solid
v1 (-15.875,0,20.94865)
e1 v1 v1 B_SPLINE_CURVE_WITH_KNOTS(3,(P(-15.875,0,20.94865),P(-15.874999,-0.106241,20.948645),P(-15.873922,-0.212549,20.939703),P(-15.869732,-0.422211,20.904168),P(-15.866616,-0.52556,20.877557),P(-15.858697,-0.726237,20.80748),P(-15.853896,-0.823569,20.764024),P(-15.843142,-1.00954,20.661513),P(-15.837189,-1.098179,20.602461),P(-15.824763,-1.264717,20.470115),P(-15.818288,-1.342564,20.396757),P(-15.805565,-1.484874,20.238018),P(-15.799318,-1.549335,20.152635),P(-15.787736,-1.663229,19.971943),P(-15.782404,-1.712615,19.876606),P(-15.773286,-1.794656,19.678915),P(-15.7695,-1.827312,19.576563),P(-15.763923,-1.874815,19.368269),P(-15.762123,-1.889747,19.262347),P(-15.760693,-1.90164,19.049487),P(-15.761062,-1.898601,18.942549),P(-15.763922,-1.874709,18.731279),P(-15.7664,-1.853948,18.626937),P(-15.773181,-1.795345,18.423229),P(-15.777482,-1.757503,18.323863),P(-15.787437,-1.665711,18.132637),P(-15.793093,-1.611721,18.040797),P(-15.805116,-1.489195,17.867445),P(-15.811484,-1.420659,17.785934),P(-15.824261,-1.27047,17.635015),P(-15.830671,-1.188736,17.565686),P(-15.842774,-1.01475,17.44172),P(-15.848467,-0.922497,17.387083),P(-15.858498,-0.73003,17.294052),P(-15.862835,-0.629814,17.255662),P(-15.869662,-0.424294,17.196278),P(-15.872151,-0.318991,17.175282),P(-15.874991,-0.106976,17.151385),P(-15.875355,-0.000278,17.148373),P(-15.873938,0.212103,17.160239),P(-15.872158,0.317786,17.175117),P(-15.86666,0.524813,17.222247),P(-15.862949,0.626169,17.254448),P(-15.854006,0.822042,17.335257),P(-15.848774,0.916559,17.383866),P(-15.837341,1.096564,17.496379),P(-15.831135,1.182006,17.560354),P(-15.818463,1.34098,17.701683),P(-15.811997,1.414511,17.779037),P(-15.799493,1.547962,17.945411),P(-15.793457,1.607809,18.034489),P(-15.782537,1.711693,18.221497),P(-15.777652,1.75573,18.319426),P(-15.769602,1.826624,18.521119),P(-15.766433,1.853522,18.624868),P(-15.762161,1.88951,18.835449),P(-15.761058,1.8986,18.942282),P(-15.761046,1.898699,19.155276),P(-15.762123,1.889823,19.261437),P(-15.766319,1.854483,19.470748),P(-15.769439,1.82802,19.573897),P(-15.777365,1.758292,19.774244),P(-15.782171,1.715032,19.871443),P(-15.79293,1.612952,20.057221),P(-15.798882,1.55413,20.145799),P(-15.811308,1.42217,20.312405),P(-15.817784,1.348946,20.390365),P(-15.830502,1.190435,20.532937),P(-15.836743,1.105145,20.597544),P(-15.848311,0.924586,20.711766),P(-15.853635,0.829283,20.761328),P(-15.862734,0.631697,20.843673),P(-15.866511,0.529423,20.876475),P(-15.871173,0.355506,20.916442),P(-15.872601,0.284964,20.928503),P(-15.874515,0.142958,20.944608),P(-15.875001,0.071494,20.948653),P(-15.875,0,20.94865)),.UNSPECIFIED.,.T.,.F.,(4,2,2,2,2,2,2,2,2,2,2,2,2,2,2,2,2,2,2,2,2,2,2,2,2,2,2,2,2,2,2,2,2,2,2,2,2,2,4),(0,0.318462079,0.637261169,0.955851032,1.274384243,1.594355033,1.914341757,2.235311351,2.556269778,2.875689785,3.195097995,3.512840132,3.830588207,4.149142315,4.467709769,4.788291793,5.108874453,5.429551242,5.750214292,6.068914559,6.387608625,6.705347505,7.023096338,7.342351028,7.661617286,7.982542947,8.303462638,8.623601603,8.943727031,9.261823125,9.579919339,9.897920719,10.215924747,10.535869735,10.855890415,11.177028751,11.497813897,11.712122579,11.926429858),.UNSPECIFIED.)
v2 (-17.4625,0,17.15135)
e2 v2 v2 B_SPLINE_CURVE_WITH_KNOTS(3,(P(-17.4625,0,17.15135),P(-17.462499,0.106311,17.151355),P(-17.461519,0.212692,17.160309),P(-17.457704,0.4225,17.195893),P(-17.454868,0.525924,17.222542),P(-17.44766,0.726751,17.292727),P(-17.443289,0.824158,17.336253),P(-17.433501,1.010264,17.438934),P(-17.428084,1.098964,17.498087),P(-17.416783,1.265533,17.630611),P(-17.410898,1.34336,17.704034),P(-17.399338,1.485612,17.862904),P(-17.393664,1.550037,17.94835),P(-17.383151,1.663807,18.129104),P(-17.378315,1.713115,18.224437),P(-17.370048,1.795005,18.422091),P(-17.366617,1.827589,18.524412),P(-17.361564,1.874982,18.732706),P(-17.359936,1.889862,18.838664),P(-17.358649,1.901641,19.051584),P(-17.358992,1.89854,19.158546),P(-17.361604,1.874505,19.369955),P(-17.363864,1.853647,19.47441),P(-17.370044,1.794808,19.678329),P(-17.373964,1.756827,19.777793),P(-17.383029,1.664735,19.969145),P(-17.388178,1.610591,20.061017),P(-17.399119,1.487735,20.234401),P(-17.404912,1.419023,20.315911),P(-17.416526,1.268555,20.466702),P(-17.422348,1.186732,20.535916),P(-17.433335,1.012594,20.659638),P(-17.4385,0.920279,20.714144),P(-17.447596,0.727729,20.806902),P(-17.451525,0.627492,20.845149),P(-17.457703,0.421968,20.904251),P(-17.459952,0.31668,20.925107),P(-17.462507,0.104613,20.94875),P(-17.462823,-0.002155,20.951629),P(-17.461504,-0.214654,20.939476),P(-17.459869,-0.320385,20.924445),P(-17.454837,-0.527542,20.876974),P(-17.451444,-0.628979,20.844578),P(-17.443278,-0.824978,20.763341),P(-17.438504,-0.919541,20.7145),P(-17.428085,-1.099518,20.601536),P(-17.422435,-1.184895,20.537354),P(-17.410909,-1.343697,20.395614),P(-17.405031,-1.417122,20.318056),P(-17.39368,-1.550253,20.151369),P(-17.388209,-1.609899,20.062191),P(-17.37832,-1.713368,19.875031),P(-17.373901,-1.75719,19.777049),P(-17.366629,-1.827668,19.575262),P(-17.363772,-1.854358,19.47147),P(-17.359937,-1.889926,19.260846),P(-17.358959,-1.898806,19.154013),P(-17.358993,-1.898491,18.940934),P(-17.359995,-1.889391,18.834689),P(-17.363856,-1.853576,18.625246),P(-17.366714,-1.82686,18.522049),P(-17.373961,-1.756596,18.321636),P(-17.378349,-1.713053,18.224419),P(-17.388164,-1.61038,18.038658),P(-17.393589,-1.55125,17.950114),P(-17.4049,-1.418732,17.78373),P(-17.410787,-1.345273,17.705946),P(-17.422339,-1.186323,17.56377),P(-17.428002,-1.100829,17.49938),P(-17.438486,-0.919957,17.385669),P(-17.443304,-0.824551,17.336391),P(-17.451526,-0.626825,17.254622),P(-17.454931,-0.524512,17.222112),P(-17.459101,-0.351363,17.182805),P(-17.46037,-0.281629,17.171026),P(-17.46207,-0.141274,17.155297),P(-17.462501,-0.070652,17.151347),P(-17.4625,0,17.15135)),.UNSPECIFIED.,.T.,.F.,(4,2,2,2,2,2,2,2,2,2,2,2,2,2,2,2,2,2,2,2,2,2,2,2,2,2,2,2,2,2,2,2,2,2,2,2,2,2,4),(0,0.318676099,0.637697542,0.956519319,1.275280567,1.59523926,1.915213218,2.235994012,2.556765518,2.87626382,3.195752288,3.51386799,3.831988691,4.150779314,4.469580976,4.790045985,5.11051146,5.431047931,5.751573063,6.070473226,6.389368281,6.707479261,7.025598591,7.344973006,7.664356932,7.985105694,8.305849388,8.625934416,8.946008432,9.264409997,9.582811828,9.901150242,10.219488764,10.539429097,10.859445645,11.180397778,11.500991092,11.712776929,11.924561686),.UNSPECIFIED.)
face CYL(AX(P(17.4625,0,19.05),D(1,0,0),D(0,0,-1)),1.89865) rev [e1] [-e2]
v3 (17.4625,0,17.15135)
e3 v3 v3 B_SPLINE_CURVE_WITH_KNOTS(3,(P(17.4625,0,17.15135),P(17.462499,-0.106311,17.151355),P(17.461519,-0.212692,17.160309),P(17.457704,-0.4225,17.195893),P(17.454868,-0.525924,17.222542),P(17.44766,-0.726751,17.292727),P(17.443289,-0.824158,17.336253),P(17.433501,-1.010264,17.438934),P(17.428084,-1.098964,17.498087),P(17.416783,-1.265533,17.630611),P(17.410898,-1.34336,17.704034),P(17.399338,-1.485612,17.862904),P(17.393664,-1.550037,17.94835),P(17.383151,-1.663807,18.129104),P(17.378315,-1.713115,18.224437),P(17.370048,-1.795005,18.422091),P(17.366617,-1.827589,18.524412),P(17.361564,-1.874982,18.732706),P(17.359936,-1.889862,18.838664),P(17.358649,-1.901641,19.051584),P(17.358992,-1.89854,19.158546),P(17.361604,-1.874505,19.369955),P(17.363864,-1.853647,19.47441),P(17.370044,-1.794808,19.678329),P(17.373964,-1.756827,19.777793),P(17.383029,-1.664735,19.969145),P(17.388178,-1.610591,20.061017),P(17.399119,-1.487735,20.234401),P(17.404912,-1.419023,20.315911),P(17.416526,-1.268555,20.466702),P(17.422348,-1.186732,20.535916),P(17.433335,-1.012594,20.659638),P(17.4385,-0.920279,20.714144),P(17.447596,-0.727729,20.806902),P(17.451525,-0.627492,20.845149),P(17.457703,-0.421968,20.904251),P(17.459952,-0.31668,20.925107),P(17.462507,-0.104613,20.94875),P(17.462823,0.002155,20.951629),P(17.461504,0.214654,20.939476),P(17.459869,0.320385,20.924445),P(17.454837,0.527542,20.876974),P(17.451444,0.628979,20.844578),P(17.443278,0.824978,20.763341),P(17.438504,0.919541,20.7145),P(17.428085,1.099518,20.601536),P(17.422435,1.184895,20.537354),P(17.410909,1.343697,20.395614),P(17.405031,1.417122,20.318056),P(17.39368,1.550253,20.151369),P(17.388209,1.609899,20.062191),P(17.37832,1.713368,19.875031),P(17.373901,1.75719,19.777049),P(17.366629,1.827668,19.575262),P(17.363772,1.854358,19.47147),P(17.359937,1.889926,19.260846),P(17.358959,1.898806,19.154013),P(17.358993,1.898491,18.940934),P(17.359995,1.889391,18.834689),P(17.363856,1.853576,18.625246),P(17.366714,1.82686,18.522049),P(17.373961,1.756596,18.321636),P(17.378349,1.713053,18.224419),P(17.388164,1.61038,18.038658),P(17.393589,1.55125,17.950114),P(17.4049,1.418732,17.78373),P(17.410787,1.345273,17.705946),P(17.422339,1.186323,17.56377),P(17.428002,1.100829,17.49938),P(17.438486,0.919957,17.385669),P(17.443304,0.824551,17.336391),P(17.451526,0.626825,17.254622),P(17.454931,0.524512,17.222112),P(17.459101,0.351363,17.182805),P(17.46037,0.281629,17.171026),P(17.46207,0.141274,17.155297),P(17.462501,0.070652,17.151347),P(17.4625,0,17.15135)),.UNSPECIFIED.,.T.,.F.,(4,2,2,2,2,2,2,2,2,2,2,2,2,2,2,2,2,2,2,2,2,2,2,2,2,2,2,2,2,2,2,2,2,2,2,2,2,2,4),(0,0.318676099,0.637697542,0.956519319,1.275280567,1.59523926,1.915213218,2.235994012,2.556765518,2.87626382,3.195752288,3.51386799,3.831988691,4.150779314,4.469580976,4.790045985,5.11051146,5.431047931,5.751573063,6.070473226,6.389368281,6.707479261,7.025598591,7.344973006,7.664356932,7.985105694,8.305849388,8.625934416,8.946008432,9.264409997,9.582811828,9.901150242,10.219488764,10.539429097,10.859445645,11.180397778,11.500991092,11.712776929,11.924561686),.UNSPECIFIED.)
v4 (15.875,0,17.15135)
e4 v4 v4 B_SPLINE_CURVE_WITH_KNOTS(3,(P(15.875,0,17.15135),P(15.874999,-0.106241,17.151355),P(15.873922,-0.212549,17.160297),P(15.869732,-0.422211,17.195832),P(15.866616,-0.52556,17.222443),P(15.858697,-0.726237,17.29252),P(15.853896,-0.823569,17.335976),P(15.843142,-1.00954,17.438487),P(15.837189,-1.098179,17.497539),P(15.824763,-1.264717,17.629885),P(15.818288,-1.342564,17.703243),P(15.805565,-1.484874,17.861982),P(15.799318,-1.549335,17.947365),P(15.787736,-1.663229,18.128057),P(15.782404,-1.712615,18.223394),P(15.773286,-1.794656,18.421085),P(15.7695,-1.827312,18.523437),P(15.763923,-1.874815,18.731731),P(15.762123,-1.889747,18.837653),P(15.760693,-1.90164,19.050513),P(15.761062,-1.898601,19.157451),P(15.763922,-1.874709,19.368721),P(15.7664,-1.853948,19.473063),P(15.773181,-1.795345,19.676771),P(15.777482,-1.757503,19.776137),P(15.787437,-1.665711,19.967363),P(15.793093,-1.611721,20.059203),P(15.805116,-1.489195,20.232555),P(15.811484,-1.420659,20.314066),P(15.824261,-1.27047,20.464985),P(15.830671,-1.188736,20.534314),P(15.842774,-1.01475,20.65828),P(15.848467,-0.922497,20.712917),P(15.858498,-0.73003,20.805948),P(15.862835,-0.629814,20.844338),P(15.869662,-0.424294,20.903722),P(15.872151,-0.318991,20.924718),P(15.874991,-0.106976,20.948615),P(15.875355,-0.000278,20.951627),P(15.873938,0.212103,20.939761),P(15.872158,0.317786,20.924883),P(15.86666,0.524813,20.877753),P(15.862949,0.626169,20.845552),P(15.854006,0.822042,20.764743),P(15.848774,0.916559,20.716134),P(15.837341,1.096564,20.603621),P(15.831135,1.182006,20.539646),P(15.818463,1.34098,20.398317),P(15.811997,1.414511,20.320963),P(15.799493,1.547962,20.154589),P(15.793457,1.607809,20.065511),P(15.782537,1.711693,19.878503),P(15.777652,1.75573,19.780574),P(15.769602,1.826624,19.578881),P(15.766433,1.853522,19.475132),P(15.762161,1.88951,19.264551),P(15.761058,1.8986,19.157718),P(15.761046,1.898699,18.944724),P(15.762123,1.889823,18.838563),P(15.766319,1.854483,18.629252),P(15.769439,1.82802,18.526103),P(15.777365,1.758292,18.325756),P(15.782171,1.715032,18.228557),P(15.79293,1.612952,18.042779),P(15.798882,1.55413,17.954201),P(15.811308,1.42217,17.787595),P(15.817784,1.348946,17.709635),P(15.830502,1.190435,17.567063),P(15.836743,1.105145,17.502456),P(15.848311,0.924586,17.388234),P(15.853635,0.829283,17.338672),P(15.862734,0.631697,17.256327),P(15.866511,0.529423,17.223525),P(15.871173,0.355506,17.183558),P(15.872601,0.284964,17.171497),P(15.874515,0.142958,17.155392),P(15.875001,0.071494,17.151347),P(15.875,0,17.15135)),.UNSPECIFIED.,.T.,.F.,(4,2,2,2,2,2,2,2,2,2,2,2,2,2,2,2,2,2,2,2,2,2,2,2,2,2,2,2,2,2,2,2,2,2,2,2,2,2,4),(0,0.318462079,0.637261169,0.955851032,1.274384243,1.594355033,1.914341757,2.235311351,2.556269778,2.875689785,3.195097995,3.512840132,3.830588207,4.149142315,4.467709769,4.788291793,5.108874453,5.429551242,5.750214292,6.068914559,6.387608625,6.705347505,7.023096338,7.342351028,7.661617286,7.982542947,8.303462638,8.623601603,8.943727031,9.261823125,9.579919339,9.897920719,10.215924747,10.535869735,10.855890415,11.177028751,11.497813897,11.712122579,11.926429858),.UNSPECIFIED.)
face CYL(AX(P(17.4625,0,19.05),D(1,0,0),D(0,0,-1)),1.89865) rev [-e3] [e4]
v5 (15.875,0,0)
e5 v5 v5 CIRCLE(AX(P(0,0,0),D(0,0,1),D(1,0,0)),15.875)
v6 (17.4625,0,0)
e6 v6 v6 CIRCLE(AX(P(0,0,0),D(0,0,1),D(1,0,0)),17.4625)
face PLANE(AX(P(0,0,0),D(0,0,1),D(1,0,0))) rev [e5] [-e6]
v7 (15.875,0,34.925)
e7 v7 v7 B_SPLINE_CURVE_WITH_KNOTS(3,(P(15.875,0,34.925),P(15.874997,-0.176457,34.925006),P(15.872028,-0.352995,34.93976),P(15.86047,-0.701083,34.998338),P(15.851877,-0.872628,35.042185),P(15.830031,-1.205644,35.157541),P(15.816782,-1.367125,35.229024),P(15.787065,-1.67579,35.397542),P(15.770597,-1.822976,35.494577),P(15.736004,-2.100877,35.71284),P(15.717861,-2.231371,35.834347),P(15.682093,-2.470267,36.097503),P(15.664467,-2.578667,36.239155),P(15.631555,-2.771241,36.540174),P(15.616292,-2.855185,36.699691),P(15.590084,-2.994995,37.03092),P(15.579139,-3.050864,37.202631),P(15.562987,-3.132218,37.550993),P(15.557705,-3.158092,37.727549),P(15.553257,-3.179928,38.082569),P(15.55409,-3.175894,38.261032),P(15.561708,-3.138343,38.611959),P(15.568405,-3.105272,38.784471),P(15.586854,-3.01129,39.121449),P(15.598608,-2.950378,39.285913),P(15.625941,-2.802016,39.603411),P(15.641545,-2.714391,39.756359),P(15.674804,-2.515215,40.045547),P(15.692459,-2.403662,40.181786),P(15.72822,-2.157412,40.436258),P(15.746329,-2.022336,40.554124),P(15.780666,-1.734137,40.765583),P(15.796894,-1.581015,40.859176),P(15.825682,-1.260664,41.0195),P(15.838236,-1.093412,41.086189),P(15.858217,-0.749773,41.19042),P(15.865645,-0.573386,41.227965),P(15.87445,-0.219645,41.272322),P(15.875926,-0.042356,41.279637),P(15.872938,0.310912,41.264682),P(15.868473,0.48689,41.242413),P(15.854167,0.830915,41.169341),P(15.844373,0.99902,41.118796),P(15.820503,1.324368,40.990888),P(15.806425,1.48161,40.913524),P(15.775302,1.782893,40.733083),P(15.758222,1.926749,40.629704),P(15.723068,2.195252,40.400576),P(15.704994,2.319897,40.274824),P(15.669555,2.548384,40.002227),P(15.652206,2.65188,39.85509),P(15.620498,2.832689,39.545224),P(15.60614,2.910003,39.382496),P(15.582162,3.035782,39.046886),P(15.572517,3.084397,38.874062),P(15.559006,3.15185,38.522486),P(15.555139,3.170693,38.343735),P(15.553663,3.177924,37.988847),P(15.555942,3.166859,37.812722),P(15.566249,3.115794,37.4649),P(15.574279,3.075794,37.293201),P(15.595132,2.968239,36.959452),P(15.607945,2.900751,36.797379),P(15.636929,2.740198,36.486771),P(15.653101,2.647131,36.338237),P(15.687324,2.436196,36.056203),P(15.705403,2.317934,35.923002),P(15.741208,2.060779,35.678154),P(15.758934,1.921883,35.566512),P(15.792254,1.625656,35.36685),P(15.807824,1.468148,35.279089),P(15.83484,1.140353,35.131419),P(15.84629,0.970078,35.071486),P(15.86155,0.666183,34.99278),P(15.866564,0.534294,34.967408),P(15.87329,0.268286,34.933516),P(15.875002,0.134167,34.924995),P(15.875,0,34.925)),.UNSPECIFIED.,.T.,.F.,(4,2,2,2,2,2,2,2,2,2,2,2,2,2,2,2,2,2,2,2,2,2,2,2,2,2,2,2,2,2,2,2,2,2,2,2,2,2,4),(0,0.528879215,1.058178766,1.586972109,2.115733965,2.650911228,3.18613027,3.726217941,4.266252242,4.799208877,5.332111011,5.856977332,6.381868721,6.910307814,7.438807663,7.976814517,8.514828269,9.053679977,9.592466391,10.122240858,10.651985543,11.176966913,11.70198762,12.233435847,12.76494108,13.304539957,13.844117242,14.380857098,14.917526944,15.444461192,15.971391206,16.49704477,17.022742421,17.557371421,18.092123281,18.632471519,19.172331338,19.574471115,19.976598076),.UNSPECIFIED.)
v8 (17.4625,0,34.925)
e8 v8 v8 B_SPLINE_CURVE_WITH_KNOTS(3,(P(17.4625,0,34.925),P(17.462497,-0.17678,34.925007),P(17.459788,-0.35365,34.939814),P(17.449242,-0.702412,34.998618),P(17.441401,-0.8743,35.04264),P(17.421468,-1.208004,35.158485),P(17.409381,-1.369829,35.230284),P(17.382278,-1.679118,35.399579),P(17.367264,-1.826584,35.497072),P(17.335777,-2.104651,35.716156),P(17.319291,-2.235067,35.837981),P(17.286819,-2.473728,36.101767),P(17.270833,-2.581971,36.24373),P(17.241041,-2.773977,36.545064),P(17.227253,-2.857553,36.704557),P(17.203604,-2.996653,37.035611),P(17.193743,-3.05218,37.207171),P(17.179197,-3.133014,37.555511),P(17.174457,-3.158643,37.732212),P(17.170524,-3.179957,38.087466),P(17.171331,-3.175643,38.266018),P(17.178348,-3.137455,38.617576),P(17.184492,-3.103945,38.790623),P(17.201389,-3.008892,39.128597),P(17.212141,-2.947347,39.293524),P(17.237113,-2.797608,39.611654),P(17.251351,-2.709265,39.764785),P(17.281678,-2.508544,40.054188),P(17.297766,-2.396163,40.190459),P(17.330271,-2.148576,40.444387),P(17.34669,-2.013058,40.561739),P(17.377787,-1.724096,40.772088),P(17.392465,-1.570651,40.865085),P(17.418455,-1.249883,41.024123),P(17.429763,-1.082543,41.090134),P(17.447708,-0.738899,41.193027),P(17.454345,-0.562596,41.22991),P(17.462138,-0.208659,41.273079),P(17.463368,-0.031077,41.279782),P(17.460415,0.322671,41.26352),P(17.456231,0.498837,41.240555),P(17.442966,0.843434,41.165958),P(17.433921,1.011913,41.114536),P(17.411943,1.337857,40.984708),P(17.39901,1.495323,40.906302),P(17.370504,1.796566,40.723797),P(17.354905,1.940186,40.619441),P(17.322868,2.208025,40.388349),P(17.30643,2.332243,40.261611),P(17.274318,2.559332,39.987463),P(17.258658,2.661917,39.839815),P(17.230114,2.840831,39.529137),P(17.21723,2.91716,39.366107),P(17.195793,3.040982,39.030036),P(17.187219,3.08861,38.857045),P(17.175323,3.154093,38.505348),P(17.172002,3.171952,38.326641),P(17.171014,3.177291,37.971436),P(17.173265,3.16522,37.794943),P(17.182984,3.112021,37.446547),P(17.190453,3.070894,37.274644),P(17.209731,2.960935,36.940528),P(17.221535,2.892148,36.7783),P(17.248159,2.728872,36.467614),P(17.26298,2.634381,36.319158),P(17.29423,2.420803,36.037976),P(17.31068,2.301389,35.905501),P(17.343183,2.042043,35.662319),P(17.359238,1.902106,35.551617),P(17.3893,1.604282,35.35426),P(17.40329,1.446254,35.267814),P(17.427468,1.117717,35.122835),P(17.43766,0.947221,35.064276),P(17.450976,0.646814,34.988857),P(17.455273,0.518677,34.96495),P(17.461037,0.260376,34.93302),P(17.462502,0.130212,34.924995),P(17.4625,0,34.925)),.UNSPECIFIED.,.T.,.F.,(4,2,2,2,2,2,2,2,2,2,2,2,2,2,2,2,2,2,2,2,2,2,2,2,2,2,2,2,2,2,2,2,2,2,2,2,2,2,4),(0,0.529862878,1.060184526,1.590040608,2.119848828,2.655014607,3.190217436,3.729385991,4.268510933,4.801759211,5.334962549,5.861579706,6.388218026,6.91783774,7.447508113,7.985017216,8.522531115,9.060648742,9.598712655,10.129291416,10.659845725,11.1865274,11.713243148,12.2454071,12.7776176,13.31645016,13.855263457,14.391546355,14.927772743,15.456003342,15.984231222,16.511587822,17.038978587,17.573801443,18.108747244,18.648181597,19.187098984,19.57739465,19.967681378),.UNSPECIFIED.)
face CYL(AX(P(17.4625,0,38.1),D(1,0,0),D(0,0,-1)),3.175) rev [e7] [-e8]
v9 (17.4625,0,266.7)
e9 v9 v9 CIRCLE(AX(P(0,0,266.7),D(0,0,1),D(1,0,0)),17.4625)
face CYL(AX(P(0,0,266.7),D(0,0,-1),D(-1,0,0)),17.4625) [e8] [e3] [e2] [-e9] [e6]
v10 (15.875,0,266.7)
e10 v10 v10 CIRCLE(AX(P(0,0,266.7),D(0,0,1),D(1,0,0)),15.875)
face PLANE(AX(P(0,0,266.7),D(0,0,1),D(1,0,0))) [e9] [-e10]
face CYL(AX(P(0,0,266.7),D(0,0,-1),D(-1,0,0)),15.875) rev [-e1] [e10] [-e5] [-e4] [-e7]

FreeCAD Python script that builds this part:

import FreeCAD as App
import Part
import Sketcher
Q = App.Units.Quantity

doc = App.newDocument("Part")
body = doc.addObject("PartDesign::Body", "Body")

# Sketch on XY plane
sketch1 = body.newObject("Sketcher::SketchObject", "Sketch")
sketch1.AttachmentSupport = (doc.getObject("XY_Plane"), [""])
sketch1.MapMode = "FlatFace"
sketch1.addGeometry([
    Part.Circle(App.Vector(0, 0, 0), App.Vector(0, 0, 1), 17.4625),
    Part.Circle(App.Vector(0, 0, 0), App.Vector(0, 0, 1), 15.875),
], False)
sketch1.addConstraint([
    Sketcher.Constraint("Coincident", 0, 3, -1, 1),
    Sketcher.Constraint("Coincident", 1, 3, -1, 1),
    Sketcher.Constraint("Diameter", 1, Q("1.25 in")),
    Sketcher.Constraint("Diameter", 0, Q("1.375 in")),
])
pad1 = body.newObject("PartDesign::Pad", "Pad")
pad1.Profile = sketch1
pad1.Length = Q("10.5 in")

# Sketch on YZ plane
sketch2 = body.newObject("Sketcher::SketchObject", "Sketch001")
sketch2.AttachmentSupport = (doc.getObject("YZ_Plane"), [""])
sketch2.MapMode = "FlatFace"
sketch2.AttachmentOffset = App.Placement(App.Vector(0, 0, 0.6875 * 25.4), App.Rotation())
sketch2.addGeometry(Part.Circle(App.Vector(0, 19.05, 0), App.Vector(0, 0, 1), 1.89865), False)
sketch2.addConstraint([
    Sketcher.Constraint("PointOnObject", 0, 3, -2),
    Sketcher.Constraint("Diameter", 0, Q("0.1495 in")),
    Sketcher.Constraint("DistanceY", -1, 1, 0, 3, Q("0.75 in")),
])
doc.recompute()
hole = body.newObject("PartDesign::Hole", "Hole")
hole.Profile = sketch2
hole.ThreadType = "None"
hole.Diameter = Q("0.1495 in")
hole.DepthType = "ThroughAll"

# Sketch on YZ plane
sketch3 = body.newObject("Sketcher::SketchObject", "Sketch002")
sketch3.AttachmentSupport = (doc.getObject("YZ_Plane"), [""])
sketch3.MapMode = "FlatFace"
sketch3.AttachmentOffset = App.Placement(App.Vector(0, 0, 0.6875 * 25.4), App.Rotation())
sketch3.addGeometry(Part.Circle(App.Vector(0, 38.1, 0), App.Vector(0, 0, 1), 3.175), False)
sketch3.addConstraint([
    Sketcher.Constraint("PointOnObject", 0, 3, -2),
    Sketcher.Constraint("Diameter", 0, Q("0.25 in")),
    Sketcher.Constraint("DistanceY", -1, 1, 0, 3, Q("1.5 in")),
])
pocket1 = body.newObject("PartDesign::Pocket", "Pocket")
pocket1.Profile = sketch3
pocket1.Length = 1.90824

doc.recompute()
